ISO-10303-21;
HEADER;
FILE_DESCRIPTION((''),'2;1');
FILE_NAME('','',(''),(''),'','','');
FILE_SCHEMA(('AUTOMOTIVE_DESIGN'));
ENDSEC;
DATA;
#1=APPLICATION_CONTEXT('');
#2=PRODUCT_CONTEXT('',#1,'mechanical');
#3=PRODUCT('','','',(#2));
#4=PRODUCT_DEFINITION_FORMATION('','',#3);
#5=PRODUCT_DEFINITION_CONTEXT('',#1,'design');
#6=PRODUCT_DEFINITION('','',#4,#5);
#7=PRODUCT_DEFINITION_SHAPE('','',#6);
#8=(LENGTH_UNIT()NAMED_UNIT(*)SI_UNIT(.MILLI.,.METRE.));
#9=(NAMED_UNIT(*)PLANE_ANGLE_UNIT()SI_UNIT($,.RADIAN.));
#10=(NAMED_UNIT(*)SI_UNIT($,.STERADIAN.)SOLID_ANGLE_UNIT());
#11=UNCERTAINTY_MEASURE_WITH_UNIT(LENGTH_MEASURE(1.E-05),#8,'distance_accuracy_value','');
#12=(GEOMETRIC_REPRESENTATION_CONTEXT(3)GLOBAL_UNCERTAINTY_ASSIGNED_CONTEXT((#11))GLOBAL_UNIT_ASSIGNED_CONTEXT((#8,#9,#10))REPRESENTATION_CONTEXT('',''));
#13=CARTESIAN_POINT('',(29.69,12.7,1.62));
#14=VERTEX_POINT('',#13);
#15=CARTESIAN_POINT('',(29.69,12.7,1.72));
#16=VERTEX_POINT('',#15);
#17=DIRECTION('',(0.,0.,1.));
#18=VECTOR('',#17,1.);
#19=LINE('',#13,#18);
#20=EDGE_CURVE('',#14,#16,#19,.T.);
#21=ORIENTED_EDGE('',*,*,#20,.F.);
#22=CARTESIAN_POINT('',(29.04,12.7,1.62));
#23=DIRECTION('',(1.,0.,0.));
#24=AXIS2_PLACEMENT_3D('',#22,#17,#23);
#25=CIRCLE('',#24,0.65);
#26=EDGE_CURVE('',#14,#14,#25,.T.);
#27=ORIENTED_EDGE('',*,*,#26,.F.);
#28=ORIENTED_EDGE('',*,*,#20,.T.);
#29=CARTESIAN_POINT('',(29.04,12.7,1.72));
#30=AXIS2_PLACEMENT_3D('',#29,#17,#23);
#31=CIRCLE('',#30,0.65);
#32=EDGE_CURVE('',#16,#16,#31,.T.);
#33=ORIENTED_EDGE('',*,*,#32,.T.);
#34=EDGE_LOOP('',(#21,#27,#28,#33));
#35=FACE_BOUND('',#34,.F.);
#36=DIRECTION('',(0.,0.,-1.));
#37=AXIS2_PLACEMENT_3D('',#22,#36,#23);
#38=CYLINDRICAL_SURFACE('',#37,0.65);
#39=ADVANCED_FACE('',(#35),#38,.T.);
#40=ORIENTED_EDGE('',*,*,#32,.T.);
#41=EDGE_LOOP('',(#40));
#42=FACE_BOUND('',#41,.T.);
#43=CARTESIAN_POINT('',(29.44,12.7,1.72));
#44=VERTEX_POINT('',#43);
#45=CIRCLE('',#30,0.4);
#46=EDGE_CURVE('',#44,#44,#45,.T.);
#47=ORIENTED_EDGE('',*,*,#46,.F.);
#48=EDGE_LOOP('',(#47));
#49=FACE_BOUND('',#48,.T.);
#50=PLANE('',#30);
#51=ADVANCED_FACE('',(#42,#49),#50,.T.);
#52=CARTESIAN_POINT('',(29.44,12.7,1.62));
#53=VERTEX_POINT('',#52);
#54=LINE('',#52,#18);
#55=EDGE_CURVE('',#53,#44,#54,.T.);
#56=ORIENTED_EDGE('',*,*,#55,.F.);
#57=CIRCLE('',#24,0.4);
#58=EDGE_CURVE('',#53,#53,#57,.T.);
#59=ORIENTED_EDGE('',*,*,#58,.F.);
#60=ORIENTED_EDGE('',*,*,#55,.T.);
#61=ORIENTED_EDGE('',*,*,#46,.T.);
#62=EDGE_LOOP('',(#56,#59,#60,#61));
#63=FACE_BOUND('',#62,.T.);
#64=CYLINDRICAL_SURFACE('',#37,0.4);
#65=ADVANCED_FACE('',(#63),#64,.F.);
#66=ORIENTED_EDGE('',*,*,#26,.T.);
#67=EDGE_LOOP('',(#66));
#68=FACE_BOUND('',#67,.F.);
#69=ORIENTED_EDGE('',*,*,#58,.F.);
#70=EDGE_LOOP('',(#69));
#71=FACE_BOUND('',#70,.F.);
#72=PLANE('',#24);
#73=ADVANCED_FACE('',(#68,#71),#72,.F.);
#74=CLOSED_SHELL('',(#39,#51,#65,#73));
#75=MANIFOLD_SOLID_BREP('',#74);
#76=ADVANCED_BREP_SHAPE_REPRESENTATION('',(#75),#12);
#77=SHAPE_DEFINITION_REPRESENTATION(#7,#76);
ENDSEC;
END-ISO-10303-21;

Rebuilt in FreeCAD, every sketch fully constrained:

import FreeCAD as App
import Part
import Sketcher
Q = App.Units.Quantity

doc = App.newDocument("Part")
body = doc.addObject("PartDesign::Body", "Body")

# Sketch on XY plane
sketch1 = doc.addObject("Sketcher::SketchObject", "Sketch")
body.addObject(sketch1)
sketch1.AttachmentSupport = (doc.XY_Plane, [""])
sketch1.MapMode = "FlatFace"
sketch1.AttachmentOffset = App.Placement(App.Vector(0, 0, 1.62), App.Rotation())
sketch1.addGeometry(Part.Circle(App.Vector(0, 0, 0), App.Vector(0, 0, 1), 0.4), False)
sketch1.addConstraint([
    Sketcher.Constraint("Coincident", 0, 3, -1, 1),
    Sketcher.Constraint("Diameter", 0, Q("0.8 mm")),
])
pad1 = doc.addObject("PartDesign::Pad", "Pad")
body.addObject(pad1)
pad1.Profile = sketch1
pad1.Length = 0.1
body2 = doc.addObject("PartDesign::Body", "Body001")

# Sketch on XY plane
sketch2 = doc.addObject("Sketcher::SketchObject", "Sketch001")
body2.addObject(sketch2)
sketch2.AttachmentSupport = (doc.getObject("XY_Plane001"), [""])
sketch2.MapMode = "FlatFace"
sketch2.AttachmentOffset = App.Placement(App.Vector(0, 0, 1.62), App.Rotation())
sketch2.addGeometry(Part.Circle(App.Vector(0, 0, 0), App.Vector(0, 0, 1), 0.65), False)
sketch2.addConstraint([
    Sketcher.Constraint("Coincident", 0, 3, -1, 1),
    Sketcher.Constraint("Diameter", 0, Q("1.3 mm")),
])
pad2 = doc.addObject("PartDesign::Pad", "Pad001")
body2.addObject(pad2)
pad2.Profile = sketch2
pad2.Length = 0.1
doc.recompute()

boolean = doc.addObject("PartDesign::Boolean", "Boolean")
body2.addObject(boolean)
boolean.Type = "Cut"
boolean.addObjects([body])
body3 = doc.addObject("PartDesign::Body", "Body002")
doc.recompute()

body2.Placement = App.Placement(App.Vector(29.04, 12.7, 0), App.Rotation(App.Vector(0, 0, 1), 0))
boolean2 = doc.addObject("PartDesign::Boolean", "Boolean001")
body3.addObject(boolean2)
boolean2.Type = "Fuse"
boolean2.addObjects([body2])

doc.recompute()
